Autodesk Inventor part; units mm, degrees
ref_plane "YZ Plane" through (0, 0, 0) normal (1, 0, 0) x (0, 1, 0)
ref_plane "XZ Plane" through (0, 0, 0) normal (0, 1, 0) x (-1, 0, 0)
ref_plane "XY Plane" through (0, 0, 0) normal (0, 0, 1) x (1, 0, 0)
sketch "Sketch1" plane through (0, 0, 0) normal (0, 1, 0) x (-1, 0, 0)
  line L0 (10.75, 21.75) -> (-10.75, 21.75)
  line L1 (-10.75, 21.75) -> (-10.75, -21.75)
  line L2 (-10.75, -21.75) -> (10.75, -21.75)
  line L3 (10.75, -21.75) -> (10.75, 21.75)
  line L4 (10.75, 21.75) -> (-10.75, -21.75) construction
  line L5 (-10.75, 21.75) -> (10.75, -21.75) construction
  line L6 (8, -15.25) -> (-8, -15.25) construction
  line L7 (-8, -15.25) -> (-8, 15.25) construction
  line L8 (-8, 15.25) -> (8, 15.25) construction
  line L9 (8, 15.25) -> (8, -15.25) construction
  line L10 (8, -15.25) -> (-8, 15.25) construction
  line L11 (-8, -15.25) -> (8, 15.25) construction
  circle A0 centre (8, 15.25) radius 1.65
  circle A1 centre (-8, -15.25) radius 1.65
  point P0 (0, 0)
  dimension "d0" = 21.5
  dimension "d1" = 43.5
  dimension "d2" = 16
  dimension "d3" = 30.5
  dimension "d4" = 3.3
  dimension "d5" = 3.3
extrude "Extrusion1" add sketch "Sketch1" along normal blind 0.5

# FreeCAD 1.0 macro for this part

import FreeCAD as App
import Part
import Sketcher
Q = App.Units.Quantity


def add_polygon(sketch, points):
    """Adds a closed chain of lines whose ends are joined by coincident constraints."""
    first, n = sketch.GeometryCount, len(points)
    for a, b in zip(points, points[1:] + points[:1]):
        sketch.addGeometry(Part.LineSegment(App.Vector(*a, 0), App.Vector(*b, 0)), False)
    for i in range(n):
        sketch.addConstraint(Sketcher.Constraint("Coincident", first + i, 2, first + (i + 1) % n, 1))

doc = App.newDocument("Part")
body = doc.addObject("PartDesign::Body", "Body")

# Sketch on XZ plane
sketch1 = doc.addObject("Sketcher::SketchObject", "Sketch")
body.addObject(sketch1)
sketch1.AttachmentSupport = (doc.XZ_Plane, [""])
sketch1.MapMode = "FlatFace"
add_polygon(sketch1, [(-10.8, -21.8), (-10.8, 21.8), (10.8, 21.8), (10.8, -21.8)])  # lines 0-3
sketch1.addGeometry(Part.Circle(App.Vector(8, -15.2, 0), App.Vector(0, 0, 1), 1.6), False)  # 4
sketch1.addGeometry(Part.Circle(App.Vector(-8, 15.2, 0), App.Vector(0, 0, 1), 1.6), False)  # 5
sketch1.addConstraint(Sketcher.Constraint("Vertical", 0))
sketch1.addConstraint(Sketcher.Constraint("Horizontal", 1))
sketch1.addConstraint(Sketcher.Constraint("Vertical", 2))
sketch1.addConstraint(Sketcher.Constraint("Horizontal", 3))
sketch1.addConstraint(Sketcher.Constraint("Equal", 4, 5))
sketch1.addConstraint(Sketcher.Constraint("Symmetric", 4, 3, 5, 3, -1, 1))
sketch1.addConstraint(Sketcher.Constraint("Symmetric", 0, 2, 2, 2, -1, 1))
sketch1.addConstraint(Sketcher.Constraint("Diameter", 4, Q("3.3 mm")))
sketch1.addConstraint(Sketcher.Constraint("DistanceX", 1, 1, 1, 2, Q("21.5 mm")))
sketch1.addConstraint(Sketcher.Constraint("DistanceY", 0, 1, 0, 2, Q("43.5 mm")))
sketch1.addConstraint(Sketcher.Constraint("DistanceX", 5, 3, 4, 3, Q("16 mm")))
sketch1.addConstraint(Sketcher.Constraint("DistanceY", 4, 3, 5, 3, Q("30.5 mm")))
pad1 = doc.addObject("PartDesign::Pad", "Pad")
body.addObject(pad1)
pad1.Profile = sketch1
pad1.Length = 0.5
pad1.Reversed = True

doc.recompute()
